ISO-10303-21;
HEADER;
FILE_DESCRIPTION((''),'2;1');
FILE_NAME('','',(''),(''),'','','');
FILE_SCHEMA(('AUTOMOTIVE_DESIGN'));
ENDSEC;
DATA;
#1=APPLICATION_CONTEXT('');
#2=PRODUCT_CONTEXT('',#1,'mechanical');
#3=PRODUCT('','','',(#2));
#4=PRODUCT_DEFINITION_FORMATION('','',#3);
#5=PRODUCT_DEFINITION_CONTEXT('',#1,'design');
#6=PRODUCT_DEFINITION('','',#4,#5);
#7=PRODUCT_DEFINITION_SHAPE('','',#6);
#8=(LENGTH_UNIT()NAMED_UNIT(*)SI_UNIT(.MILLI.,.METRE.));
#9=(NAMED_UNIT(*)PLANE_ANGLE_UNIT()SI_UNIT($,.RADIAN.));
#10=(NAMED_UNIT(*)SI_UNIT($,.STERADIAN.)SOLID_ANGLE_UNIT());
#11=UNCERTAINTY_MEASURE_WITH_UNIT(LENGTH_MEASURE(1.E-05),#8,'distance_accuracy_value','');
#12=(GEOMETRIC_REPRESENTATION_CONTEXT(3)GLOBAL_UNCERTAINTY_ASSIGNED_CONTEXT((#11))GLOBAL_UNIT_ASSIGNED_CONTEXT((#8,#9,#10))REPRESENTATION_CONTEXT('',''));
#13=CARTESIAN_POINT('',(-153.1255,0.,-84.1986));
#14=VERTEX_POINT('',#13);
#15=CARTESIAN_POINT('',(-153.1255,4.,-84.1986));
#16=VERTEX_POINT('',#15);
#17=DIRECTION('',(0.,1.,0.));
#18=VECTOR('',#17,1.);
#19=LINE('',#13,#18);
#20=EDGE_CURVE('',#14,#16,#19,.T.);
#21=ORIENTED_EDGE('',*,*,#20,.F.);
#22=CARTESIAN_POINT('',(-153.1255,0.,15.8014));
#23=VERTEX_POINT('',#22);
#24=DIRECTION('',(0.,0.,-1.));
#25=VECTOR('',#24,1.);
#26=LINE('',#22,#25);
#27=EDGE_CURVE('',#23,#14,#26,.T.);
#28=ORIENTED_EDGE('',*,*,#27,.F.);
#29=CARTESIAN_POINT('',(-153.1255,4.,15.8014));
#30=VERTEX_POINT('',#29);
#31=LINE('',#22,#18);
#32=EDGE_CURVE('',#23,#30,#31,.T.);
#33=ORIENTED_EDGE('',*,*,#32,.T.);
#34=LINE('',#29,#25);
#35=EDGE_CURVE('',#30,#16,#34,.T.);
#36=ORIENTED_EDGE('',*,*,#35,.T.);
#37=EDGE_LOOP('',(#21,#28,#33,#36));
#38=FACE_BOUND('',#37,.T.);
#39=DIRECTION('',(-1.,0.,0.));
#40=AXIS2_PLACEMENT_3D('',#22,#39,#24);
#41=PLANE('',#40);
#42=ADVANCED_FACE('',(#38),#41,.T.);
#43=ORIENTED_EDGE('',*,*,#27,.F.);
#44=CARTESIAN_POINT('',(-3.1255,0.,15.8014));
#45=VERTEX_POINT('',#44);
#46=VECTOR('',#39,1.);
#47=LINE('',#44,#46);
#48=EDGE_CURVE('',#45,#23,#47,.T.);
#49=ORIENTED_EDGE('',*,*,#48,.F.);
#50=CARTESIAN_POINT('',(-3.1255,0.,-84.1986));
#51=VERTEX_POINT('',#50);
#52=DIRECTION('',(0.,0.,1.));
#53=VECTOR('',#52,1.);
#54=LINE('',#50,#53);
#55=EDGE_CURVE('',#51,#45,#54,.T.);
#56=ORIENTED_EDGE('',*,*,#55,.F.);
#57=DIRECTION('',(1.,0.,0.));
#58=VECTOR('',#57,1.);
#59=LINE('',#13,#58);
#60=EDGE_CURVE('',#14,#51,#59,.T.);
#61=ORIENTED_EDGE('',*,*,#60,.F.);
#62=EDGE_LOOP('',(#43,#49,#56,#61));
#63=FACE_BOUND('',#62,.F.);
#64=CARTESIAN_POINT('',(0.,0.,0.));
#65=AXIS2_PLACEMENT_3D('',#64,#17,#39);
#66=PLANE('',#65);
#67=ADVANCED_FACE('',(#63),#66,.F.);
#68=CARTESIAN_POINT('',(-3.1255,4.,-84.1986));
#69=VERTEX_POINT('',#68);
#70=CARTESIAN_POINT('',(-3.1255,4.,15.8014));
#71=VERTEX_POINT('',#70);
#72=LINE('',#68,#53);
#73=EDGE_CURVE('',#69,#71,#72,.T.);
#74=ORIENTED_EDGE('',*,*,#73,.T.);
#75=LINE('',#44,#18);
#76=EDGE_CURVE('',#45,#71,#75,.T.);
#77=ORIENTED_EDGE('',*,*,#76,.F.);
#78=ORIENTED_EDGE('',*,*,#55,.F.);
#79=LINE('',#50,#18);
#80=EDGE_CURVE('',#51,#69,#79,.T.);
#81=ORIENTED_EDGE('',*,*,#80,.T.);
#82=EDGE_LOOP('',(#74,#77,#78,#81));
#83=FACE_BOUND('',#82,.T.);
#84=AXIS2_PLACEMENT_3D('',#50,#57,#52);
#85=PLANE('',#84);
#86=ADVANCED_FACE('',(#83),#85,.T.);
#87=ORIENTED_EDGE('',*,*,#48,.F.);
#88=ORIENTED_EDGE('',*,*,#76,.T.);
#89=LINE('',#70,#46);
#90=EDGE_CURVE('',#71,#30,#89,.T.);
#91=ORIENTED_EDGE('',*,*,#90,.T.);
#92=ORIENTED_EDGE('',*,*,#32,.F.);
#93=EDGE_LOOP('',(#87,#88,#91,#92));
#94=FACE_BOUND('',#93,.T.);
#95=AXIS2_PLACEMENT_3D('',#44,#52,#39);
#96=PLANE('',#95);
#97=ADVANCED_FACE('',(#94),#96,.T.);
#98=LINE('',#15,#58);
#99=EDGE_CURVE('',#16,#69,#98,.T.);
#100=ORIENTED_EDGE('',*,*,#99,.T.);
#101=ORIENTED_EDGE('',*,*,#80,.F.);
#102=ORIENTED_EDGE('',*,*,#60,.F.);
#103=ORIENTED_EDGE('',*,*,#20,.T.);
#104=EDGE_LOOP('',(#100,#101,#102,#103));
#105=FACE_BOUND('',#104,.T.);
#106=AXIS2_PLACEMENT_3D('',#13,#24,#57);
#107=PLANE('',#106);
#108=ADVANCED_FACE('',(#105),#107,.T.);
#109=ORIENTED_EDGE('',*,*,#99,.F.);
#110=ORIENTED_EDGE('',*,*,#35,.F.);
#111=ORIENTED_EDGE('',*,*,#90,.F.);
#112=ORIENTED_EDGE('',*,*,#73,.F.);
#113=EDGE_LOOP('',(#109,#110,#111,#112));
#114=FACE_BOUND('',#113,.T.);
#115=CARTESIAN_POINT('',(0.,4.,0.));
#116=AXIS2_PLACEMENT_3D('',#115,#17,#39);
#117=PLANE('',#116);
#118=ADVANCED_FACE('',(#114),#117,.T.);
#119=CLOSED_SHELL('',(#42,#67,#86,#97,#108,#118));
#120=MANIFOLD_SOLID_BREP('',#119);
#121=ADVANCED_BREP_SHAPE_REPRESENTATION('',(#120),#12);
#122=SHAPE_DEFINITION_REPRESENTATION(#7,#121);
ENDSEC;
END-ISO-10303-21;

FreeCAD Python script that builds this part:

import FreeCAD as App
import Part
import Sketcher


def add_polygon(sketch, points):
    """Adds a closed chain of lines whose ends are joined by coincident constraints."""
    first, n = sketch.GeometryCount, len(points)
    for a, b in zip(points, points[1:] + points[:1]):
        sketch.addGeometry(Part.LineSegment(App.Vector(*a, 0), App.Vector(*b, 0)), False)
    for i in range(n):
        sketch.addConstraint(Sketcher.Constraint("Coincident", first + i, 2, first + (i + 1) % n, 1))

doc = App.newDocument("Part")
body = doc.addObject("PartDesign::Body", "Body")

# Sketch on XZ plane
sketch1 = doc.addObject("Sketcher::SketchObject", "Sketch")
body.addObject(sketch1)
sketch1.AttachmentSupport = (doc.XZ_Plane, [""])
sketch1.MapMode = "FlatFace"
add_polygon(sketch1, [(-153, 16), (-3, 16), (-3, -84), (-153, -84)])  # lines 0-3
sketch1.addConstraint([
    Sketcher.Constraint("Horizontal", 0),
    Sketcher.Constraint("Vertical", 1),
    Sketcher.Constraint("Horizontal", 2),
    Sketcher.Constraint("Vertical", 3),
    Sketcher.Constraint("DistanceX", 0, 1, 0, 2, 150.0),
    Sketcher.Constraint("DistanceY", 1, 2, 1, 1, 100.0),
    Sketcher.Constraint("DistanceX", 0, 2, -1, 1, 3.1255),
    Sketcher.Constraint("DistanceY", -1, 1, 0, 2, 15.8014),
])
pad1 = doc.addObject("PartDesign::Pad", "Pad")
body.addObject(pad1)
pad1.Profile = sketch1
pad1.Length = 4
pad1.Reversed = True

doc.recompute()
